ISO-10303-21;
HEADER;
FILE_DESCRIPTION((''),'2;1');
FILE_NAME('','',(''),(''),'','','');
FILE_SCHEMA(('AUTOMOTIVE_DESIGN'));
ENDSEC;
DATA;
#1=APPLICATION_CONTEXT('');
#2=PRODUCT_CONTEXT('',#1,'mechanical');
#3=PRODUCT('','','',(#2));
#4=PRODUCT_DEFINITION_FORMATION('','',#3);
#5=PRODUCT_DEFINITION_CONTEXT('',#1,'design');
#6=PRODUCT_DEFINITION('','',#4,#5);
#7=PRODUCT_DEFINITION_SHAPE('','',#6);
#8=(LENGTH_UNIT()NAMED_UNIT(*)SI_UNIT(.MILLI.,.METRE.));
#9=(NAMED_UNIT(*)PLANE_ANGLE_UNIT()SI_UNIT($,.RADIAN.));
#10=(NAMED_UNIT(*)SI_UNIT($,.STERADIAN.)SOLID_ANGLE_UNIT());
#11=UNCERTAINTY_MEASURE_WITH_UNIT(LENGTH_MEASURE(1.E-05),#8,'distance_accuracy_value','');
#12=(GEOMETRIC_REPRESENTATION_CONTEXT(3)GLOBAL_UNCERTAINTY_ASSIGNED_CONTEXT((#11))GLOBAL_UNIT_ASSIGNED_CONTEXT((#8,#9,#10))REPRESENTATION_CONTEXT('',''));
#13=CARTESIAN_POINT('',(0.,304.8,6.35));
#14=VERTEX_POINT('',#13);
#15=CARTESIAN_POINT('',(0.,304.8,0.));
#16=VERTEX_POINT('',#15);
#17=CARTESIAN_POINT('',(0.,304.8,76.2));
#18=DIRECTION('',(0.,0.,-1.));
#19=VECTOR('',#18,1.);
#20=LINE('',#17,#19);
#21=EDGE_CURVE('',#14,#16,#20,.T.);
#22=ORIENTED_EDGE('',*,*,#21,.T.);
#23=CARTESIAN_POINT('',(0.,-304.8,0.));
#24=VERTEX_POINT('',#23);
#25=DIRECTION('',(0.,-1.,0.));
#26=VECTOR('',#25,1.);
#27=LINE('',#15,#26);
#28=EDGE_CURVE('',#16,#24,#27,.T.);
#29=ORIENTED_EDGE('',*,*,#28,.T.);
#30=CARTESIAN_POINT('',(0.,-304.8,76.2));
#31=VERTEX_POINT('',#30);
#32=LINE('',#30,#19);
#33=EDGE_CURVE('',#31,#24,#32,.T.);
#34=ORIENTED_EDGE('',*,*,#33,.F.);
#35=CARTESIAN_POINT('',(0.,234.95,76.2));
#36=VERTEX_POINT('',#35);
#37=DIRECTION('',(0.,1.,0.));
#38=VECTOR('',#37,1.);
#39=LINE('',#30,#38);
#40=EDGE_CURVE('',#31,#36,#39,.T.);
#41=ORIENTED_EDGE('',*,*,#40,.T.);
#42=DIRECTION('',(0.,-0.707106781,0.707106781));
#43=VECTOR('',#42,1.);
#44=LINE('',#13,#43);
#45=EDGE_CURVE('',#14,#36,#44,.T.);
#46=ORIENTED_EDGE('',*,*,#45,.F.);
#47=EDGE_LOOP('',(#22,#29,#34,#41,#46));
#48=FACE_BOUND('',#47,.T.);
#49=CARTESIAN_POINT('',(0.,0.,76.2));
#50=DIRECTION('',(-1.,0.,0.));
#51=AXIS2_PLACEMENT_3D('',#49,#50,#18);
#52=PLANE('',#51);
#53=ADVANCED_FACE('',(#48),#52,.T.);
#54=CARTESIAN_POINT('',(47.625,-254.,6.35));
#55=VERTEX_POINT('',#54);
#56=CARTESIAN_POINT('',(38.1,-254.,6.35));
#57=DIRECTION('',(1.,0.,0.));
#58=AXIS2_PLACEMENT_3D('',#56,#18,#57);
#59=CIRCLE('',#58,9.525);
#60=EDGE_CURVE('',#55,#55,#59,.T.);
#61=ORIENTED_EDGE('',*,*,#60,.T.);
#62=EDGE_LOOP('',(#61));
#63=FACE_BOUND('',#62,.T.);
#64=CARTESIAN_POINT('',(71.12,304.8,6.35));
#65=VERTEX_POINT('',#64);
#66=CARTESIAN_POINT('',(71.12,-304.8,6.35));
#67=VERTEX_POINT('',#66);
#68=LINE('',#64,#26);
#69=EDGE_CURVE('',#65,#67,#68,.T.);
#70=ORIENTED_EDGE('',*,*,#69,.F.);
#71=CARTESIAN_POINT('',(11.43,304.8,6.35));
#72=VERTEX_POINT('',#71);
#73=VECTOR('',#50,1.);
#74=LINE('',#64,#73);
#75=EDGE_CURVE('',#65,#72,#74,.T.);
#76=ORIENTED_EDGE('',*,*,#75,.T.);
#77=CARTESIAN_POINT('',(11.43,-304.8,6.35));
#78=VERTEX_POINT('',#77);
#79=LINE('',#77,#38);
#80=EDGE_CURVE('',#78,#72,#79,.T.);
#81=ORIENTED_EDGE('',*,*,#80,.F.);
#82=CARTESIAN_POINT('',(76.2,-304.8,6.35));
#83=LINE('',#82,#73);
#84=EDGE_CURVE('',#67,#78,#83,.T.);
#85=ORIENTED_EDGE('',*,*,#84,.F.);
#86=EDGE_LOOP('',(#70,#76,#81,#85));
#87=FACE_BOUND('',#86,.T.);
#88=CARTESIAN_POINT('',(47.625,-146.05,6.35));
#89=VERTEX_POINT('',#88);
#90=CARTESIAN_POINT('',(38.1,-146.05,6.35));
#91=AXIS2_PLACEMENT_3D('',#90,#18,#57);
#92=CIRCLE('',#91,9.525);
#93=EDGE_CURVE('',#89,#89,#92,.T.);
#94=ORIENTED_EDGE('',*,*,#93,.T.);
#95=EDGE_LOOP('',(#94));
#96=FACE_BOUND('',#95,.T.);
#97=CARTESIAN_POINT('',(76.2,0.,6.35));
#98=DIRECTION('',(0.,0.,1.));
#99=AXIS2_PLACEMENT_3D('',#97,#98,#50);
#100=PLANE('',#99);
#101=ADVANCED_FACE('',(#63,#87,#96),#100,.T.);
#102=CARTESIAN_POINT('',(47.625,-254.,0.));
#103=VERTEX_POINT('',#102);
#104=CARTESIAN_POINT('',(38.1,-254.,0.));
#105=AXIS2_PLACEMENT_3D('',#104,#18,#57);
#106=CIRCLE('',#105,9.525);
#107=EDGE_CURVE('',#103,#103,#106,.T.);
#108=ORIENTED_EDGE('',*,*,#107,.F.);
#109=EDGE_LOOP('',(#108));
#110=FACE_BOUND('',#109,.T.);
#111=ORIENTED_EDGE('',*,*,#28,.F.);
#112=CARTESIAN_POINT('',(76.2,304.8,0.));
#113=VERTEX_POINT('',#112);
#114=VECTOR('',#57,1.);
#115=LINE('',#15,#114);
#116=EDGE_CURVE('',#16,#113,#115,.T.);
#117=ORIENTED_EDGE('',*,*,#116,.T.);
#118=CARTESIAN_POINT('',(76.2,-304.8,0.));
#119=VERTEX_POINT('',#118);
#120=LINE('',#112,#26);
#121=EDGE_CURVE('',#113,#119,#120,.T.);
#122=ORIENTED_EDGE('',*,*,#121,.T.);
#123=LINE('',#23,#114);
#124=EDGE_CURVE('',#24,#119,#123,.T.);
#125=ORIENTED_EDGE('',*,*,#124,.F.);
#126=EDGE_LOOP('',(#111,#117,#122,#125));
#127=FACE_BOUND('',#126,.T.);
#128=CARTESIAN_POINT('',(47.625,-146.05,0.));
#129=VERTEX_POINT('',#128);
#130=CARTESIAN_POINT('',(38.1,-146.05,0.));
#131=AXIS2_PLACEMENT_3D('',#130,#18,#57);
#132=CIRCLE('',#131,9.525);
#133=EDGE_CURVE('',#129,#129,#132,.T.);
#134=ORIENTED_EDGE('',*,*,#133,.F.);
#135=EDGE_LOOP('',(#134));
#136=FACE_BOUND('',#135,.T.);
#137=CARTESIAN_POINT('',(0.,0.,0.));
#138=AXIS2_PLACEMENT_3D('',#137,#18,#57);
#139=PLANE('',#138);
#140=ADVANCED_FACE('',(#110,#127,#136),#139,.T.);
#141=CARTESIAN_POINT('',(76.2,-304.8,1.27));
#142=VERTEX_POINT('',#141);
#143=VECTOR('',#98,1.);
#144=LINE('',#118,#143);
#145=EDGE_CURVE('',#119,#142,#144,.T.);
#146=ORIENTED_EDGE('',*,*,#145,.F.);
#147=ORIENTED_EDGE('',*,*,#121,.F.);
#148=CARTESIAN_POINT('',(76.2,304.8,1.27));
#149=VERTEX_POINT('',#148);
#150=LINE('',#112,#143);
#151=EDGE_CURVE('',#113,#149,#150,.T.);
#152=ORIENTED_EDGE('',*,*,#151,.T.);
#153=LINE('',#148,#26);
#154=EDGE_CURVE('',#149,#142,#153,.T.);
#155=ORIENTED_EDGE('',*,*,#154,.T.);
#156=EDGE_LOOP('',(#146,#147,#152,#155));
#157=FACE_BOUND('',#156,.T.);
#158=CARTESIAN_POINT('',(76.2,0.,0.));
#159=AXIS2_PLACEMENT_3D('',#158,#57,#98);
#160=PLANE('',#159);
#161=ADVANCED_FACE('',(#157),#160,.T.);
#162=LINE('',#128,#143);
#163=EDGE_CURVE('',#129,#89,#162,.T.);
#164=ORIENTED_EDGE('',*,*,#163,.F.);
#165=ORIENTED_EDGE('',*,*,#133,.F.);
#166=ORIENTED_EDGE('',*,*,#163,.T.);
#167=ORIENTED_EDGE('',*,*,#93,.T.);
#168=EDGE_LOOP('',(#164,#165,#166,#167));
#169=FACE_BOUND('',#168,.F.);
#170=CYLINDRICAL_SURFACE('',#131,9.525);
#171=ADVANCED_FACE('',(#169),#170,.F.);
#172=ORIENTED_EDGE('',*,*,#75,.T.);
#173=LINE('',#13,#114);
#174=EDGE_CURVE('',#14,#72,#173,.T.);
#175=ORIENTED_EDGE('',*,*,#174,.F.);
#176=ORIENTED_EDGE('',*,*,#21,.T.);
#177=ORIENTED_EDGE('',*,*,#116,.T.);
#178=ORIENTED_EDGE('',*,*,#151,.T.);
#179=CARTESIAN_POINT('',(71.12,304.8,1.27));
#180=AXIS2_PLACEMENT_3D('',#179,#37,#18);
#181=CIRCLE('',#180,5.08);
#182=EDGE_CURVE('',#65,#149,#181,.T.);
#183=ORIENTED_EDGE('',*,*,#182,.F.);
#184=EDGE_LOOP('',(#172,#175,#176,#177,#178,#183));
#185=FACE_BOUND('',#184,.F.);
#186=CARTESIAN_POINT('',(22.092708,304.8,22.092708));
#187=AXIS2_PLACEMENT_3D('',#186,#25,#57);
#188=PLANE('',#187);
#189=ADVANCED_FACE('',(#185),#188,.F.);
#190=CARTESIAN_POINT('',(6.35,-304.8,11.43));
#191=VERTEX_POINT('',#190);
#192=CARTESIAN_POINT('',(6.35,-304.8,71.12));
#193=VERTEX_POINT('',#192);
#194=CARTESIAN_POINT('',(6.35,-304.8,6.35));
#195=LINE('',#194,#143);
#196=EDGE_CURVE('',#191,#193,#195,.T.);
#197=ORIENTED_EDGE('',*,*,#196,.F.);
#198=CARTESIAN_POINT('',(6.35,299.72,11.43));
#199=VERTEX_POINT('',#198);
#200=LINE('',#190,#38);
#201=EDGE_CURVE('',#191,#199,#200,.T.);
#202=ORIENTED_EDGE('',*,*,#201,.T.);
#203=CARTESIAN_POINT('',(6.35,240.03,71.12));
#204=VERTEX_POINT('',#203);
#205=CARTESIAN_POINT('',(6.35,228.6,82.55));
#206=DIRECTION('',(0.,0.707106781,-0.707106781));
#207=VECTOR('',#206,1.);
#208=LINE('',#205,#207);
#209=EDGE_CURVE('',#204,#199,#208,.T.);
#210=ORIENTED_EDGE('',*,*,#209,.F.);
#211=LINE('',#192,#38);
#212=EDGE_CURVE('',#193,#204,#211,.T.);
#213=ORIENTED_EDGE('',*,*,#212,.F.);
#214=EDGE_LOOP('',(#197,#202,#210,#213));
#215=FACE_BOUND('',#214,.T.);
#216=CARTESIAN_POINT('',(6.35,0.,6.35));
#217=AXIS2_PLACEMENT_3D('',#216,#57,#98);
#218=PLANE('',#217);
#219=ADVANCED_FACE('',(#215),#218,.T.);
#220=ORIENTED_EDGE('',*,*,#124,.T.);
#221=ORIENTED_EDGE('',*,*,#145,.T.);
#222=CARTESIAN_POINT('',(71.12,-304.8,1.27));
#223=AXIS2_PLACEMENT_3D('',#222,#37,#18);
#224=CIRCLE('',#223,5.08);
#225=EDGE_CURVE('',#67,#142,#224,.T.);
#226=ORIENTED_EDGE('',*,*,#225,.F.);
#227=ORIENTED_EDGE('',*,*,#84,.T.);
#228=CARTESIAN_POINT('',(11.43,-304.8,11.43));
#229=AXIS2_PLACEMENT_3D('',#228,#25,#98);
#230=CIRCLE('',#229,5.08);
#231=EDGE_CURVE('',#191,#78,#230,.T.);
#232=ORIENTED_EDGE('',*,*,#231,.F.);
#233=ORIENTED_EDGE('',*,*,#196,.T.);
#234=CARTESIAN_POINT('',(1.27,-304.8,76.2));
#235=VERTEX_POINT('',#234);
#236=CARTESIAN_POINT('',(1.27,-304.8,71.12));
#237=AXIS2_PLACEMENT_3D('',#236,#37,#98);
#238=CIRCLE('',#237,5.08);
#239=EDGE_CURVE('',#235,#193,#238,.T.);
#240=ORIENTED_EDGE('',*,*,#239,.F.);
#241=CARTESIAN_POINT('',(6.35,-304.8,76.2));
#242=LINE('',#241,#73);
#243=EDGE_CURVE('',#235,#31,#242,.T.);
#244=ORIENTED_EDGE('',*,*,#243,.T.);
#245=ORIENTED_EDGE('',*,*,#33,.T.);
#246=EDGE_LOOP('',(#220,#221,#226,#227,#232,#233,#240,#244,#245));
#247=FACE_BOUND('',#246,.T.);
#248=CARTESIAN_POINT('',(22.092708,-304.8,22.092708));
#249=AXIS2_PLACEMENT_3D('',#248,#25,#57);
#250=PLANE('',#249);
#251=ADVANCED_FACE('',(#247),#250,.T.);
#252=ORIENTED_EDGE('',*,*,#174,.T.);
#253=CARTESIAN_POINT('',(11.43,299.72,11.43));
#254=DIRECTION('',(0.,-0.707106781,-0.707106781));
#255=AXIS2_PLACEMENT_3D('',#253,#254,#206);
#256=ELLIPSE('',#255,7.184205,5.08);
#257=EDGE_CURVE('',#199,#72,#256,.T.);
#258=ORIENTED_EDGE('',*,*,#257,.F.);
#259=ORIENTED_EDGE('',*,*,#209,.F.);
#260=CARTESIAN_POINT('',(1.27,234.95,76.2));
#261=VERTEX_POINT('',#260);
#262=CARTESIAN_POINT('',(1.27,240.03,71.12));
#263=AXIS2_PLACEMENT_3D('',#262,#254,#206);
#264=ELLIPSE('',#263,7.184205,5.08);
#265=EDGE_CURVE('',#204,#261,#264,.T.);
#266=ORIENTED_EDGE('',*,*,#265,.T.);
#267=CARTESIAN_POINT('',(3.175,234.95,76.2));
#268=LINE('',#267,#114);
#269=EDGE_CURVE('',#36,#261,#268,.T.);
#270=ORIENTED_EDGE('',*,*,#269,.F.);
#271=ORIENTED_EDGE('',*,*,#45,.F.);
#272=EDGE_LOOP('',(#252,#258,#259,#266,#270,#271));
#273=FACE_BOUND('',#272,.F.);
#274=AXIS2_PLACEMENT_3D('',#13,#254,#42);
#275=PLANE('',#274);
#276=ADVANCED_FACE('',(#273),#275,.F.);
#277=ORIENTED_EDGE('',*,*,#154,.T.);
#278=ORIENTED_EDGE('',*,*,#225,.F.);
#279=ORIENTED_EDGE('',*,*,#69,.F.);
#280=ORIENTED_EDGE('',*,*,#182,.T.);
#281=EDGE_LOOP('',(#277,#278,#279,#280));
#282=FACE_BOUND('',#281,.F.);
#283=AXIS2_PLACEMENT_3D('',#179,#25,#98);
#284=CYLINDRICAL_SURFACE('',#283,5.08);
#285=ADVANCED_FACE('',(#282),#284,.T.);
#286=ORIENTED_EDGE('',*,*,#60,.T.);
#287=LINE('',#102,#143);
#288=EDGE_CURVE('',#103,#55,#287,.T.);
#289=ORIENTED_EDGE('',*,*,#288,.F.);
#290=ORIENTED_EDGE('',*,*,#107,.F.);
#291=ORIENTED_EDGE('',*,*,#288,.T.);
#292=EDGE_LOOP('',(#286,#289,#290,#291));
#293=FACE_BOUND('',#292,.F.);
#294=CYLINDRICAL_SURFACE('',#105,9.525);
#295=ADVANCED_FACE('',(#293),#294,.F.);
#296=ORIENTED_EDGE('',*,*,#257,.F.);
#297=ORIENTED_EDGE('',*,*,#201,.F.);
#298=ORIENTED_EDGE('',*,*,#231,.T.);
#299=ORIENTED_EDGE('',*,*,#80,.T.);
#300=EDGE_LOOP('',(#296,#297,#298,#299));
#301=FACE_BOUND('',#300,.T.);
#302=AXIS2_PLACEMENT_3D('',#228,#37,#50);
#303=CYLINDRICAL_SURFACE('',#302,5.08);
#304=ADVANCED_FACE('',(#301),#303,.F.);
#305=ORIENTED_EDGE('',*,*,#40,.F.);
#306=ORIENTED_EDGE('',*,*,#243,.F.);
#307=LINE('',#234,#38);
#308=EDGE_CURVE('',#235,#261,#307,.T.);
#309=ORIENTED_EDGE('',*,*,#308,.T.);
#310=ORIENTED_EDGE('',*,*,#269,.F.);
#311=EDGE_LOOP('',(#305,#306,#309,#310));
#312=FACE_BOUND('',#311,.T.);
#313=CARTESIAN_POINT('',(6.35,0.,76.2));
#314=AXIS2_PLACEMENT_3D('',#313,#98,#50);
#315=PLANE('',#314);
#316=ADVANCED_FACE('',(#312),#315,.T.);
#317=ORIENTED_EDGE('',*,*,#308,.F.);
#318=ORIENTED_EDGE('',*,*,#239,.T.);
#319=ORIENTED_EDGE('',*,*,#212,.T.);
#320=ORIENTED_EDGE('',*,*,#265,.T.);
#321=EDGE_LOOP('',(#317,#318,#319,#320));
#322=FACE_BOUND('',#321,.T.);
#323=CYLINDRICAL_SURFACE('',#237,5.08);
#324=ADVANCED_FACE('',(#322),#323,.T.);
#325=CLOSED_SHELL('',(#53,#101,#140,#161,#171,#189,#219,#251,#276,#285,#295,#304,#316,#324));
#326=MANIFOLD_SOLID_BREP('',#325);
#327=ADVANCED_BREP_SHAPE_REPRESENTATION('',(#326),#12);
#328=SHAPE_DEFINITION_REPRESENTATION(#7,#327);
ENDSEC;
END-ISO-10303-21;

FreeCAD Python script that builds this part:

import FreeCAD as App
import Part
import Sketcher
from FreeCAD import Vector
Q = App.Units.Quantity


def edges_at(feature, points):
    """Names of the edges that pass closest to the given points."""
    edges = feature.Shape.Edges
    near = lambda p: min(range(len(edges)), key=lambda i: edges[i].distToShape(Part.Vertex(*p))[0])
    return sorted({f"Edge{near(p) + 1}" for p in points})


def add_polygon(sketch, points):
    """Adds a closed chain of lines whose ends are joined by coincident constraints."""
    first, n = sketch.GeometryCount, len(points)
    for a, b in zip(points, points[1:] + points[:1]):
        sketch.addGeometry(Part.LineSegment(App.Vector(*a, 0), App.Vector(*b, 0)), False)
    for i in range(n):
        sketch.addConstraint(Sketcher.Constraint("Coincident", first + i, 2, first + (i + 1) % n, 1))

doc = App.newDocument("Part")
body = doc.addObject("PartDesign::Body", "Body")

# Sketch on XZ plane
sketch1 = body.newObject("Sketcher::SketchObject", "Sketch")
sketch1.AttachmentSupport = (doc.getObject("XZ_Plane"), [""])
sketch1.MapMode = "FlatFace"
add_polygon(sketch1, [(0, 76.2), (0, 0), (76.2, 0), (76.2, 6.35), (6.35, 6.35), (6.35, 76.2)])  # lines 0-5
sketch1.addConstraint([
    Sketcher.Constraint("Vertical", 0),
    Sketcher.Constraint("Horizontal", 1),
    Sketcher.Constraint("Vertical", 2),
    Sketcher.Constraint("Horizontal", 3),
    Sketcher.Constraint("Vertical", 4),
    Sketcher.Constraint("Horizontal", 5),
    Sketcher.Constraint("Coincident", 0, 2, -1, 1),
    Sketcher.Constraint("Equal", 1, 0),
    Sketcher.Constraint("Equal", 5, 2),
    Sketcher.Constraint("DistanceX", 1, 1, 1, 2, Q("3 in")),
    Sketcher.Constraint("DistanceX", 3, 2, 3, 1, Q("2.75 in")),
])
pad1 = body.newObject("PartDesign::Pad", "Pad")
pad1.Profile = sketch1
pad1.Length = Q("24 in")
pad1.Midplane = True
doc.recompute()

fillet = body.newObject("PartDesign::Fillet", "Fillet")
fillet.Base = (pad1, edges_at(pad1, [(6.35, 0, 76.2), (6.35, 0, 6.35), (76.2, 0, 6.35)]))
fillet.Radius = Q("0.2 in")

# Sketch on YZ plane
sketch2 = body.newObject("Sketcher::SketchObject", "Sketch001")
sketch2.AttachmentSupport = (doc.getObject("YZ_Plane"), [""])
sketch2.MapMode = "FlatFace"
add_polygon(sketch2, [(304.8, 116.164517), (304.8, 6.35), (194.985483, 116.164517)])  # lines 0-2
sketch2.addConstraint([
    Sketcher.Constraint("Vertical", 0),
    Sketcher.Constraint("Horizontal", 2),
    Sketcher.Constraint("Equal", 2, 0),
    Sketcher.Constraint("DistanceX", -1, 1, 0, 2, Q("12 in")),
    Sketcher.Constraint("DistanceY", -1, 1, 0, 2, Q("0.25 in")),
    Sketcher.Constraint("Distance", 1, 155.301179),
])
pocket1 = body.newObject("PartDesign::Pocket", "Pocket")
pocket1.Profile = sketch2
pocket1.Length = Q("1 in")
pocket1.Reversed = True

# Sketch on XY plane
sketch3 = body.newObject("Sketcher::SketchObject", "Sketch002")
sketch3.AttachmentSupport = (doc.getObject("XY_Plane"), [""])
sketch3.MapMode = "FlatFace"
sketch3.addGeometry([
    Part.Circle(Vector(38.1, -254, 0), Vector(0, 0, 1), 9.525),
    Part.Circle(Vector(38.1, -146.05, 0), Vector(0, 0, 1), 9.525),
], False)
sketch3.addConstraint([
    Sketcher.Constraint("Equal", 0, 1),
    Sketcher.Constraint("Vertical", 0, 3, 1, 3),
    Sketcher.Constraint("Diameter", 0, Q("0.75 in")),
    Sketcher.Constraint("DistanceY", 0, 3, -1, 1, Q("10 in")),
    Sketcher.Constraint("DistanceX", -1, 1, 0, 3, Q("1.5 in")),
    Sketcher.Constraint("DistanceY", 1, 3, -1, 1, Q("5.75 in")),
])
pocket2 = body.newObject("PartDesign::Pocket", "Pocket001")
pocket2.Profile = sketch3
pocket2.Length = Q("1 in")
pocket2.Reversed = True

doc.recompute()
